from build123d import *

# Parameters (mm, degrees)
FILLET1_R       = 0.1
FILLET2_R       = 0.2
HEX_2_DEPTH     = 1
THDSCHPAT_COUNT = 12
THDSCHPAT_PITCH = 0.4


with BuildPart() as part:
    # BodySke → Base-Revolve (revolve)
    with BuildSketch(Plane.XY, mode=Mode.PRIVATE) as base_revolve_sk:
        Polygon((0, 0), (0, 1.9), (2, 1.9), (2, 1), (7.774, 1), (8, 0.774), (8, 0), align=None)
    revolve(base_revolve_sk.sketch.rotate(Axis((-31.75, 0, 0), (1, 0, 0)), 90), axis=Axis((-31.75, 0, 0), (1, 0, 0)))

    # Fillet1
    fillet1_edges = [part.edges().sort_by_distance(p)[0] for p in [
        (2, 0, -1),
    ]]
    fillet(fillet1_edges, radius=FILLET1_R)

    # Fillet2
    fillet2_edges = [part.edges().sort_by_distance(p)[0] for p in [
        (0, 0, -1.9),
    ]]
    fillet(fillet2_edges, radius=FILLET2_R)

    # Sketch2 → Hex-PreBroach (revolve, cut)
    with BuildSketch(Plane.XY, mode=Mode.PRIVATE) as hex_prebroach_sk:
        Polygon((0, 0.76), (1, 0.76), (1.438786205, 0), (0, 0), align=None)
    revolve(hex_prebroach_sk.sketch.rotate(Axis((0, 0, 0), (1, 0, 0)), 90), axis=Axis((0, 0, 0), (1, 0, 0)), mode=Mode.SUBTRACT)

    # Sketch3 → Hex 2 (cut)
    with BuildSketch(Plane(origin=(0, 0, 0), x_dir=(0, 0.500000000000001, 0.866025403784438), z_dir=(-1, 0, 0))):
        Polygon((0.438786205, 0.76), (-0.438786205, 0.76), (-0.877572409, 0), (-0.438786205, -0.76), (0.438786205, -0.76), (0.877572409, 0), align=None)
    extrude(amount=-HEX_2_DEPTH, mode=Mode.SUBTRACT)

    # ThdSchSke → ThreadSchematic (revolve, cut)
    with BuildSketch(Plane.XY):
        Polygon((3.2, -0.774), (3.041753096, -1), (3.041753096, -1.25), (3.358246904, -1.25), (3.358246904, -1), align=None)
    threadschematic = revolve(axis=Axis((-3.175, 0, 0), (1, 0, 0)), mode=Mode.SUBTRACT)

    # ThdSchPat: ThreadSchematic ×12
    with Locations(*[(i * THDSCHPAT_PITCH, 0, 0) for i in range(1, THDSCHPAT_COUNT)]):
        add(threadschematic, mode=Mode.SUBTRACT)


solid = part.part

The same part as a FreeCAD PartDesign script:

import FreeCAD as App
import Part
import Sketcher
from FreeCAD import Vector
Q = App.Units.Quantity


def edges_at(feature, points):
    """Names of the edges that pass closest to the given points."""
    edges = feature.Shape.Edges
    near = lambda p: min(range(len(edges)), key=lambda i: edges[i].distToShape(Part.Vertex(*p))[0])
    return sorted({f"Edge{near(p) + 1}" for p in points})

doc = App.newDocument("Part")
body = doc.addObject("PartDesign::Body", "Body")

sketch1 = body.newObject("Sketcher::SketchObject", "Sketch")
sketch1.AttachmentSupport = (doc.getObject("XY_Plane"), [""])
sketch1.MapMode = "FlatFace"
sketch1.addGeometry(Part.LineSegment(Vector(0, 1.9, 0), Vector(0, 0, 0)), False)
sketch1.addGeometry(Part.LineSegment(Vector(0, 0, 0), Vector(8, 0, 0)), False)
sketch1.addGeometry(Part.LineSegment(Vector(8, 0, 0), Vector(8, 0.774, 0)), False)
sketch1.addGeometry(Part.LineSegment(Vector(8, 0.774, 0), Vector(7.774, 1, 0)), False)
sketch1.addGeometry(Part.LineSegment(Vector(7.774, 1, 0), Vector(2, 1, 0)), False)
sketch1.addGeometry(Part.LineSegment(Vector(2, 1, 0), Vector(2, 1.9, 0)), False)
sketch1.addGeometry(Part.LineSegment(Vector(2, 1.9, 0), Vector(0, 1.9, 0)), False)
sketch1.addConstraint(Sketcher.Constraint("Coincident", 0, 2, 1, 1))
sketch1.addConstraint(Sketcher.Constraint("Coincident", 1, 2, 2, 1))
sketch1.addConstraint(Sketcher.Constraint("Coincident", 2, 2, 3, 1))
sketch1.addConstraint(Sketcher.Constraint("Coincident", 3, 2, 4, 1))
sketch1.addConstraint(Sketcher.Constraint("Coincident", 4, 2, 5, 1))
sketch1.addConstraint(Sketcher.Constraint("Coincident", 5, 2, 6, 1))
sketch1.addConstraint(Sketcher.Constraint("Coincident", 6, 2, 0, 1))
sketch1.addConstraint(Sketcher.Constraint("Vertical", 0))
sketch1.addConstraint(Sketcher.Constraint("Horizontal", 1))
sketch1.addConstraint(Sketcher.Constraint("Vertical", 2))
sketch1.addConstraint(Sketcher.Constraint("Horizontal", 4))
sketch1.addConstraint(Sketcher.Constraint("Vertical", 5))
sketch1.addConstraint(Sketcher.Constraint("Horizontal", 6))
sketch1.addConstraint(Sketcher.Constraint("Coincident", 0, 2, -1, 1))
sketch1.addConstraint(Sketcher.Constraint("DistanceX", 1, 1, 1, 2, Q("8 mm")))
sketch1.addConstraint(Sketcher.Constraint("DistanceX", 6, 2, 6, 1, Q("2 mm")))
sketch1.addConstraint(Sketcher.Constraint("Angle", 3, Q("135 deg")))
sketch1.addConstraint(Sketcher.Constraint("DistanceY", 0, 2, 0, 1, Q("1.9 mm")))
sketch1.addConstraint(Sketcher.Constraint("DistanceY", 5, 1, 5, 2, Q("0.9 mm")))
sketch1.addConstraint(Sketcher.Constraint("DistanceX", 4, 2, 4, 1, Q("5.774 mm")))
revolution = body.newObject("PartDesign::Revolution", "Revolution")
revolution.Profile = sketch1
revolution.ReferenceAxis = (sketch1, ["H_Axis"])
revolution.Angle = 360
doc.recompute()

fillet = body.newObject("PartDesign::Fillet", "Fillet")
fillet.Base = (revolution, edges_at(revolution, [(2, 0, -1)]))
fillet.Radius = 0.1
doc.recompute()

fillet2 = body.newObject("PartDesign::Fillet", "Fillet001")
fillet2.Base = (fillet, edges_at(fillet, [(0, 0, -1.9)]))
fillet2.Radius = 0.2

sketch2 = body.newObject("Sketcher::SketchObject", "Sketch001")
sketch2.AttachmentSupport = (doc.getObject("XY_Plane"), [""])
sketch2.MapMode = "FlatFace"
sketch2.addGeometry(Part.LineSegment(Vector(1, 0.76, 0), Vector(0, 0.76, 0)), False)
sketch2.addGeometry(Part.LineSegment(Vector(0, 0.76, 0), Vector(0, 0, 0)), False)
sketch2.addGeometry(Part.LineSegment(Vector(0, 0, 0), Vector(1.438786, 0, 0)), False)
sketch2.addGeometry(Part.LineSegment(Vector(1.438786, 0, 0), Vector(1, 0.76, 0)), False)
sketch2.addConstraint(Sketcher.Constraint("Coincident", 0, 2, 1, 1))
sketch2.addConstraint(Sketcher.Constraint("Coincident", 1, 2, 2, 1))
sketch2.addConstraint(Sketcher.Constraint("Coincident", 2, 2, 3, 1))
sketch2.addConstraint(Sketcher.Constraint("Coincident", 3, 2, 0, 1))
sketch2.addConstraint(Sketcher.Constraint("Horizontal", 0))
sketch2.addConstraint(Sketcher.Constraint("Vertical", 1))
sketch2.addConstraint(Sketcher.Constraint("Horizontal", 2))
sketch2.addConstraint(Sketcher.Constraint("Coincident", 1, 2, -1, 1))
sketch2.addConstraint(Sketcher.Constraint("DistanceX", 0, 2, 0, 1, Q("1 mm")))
sketch2.addConstraint(Sketcher.Constraint("Angle", 3, Q("120 deg")))
sketch2.addConstraint(Sketcher.Constraint("DistanceY", 1, 2, 1, 1, Q("0.76 mm")))
groove = body.newObject("PartDesign::Groove", "Groove")
groove.Profile = sketch2
groove.ReferenceAxis = (sketch2, ["H_Axis"])
groove.Angle = 360

sketch3 = body.newObject("Sketcher::SketchObject", "Sketch002")
sketch3.AttachmentSupport = (doc.getObject("YZ_Plane"), [""])
sketch3.MapMode = "FlatFace"
sketch3.addGeometry(Part.LineSegment(Vector(0.877572, 0, 0), Vector(0.438786, -0.76, 0)), False)
sketch3.addGeometry(Part.LineSegment(Vector(0.438786, -0.76, 0), Vector(-0.438786, -0.76, 0)), False)
sketch3.addGeometry(Part.LineSegment(Vector(-0.438786, -0.76, 0), Vector(-0.877572, 0, 0)), False)
sketch3.addGeometry(Part.LineSegment(Vector(-0.877572, 0, 0), Vector(-0.438786, 0.76, 0)), False)
sketch3.addGeometry(Part.LineSegment(Vector(-0.438786, 0.76, 0), Vector(0.438786, 0.76, 0)), False)
sketch3.addGeometry(Part.LineSegment(Vector(0.438786, 0.76, 0), Vector(0.877572, 0, 0)), False)
sketch3.addConstraint(Sketcher.Constraint("Coincident", 0, 2, 1, 1))
sketch3.addConstraint(Sketcher.Constraint("Coincident", 1, 2, 2, 1))
sketch3.addConstraint(Sketcher.Constraint("Coincident", 2, 2, 3, 1))
sketch3.addConstraint(Sketcher.Constraint("Coincident", 3, 2, 4, 1))
sketch3.addConstraint(Sketcher.Constraint("Coincident", 4, 2, 5, 1))
sketch3.addConstraint(Sketcher.Constraint("Coincident", 5, 2, 0, 1))
sketch3.addConstraint(Sketcher.Constraint("Horizontal", 1))
sketch3.addConstraint(Sketcher.Constraint("Horizontal", 4))
sketch3.addConstraint(Sketcher.Constraint("Symmetric", 0, 2, 3, 2, -1, 1))
sketch3.addConstraint(Sketcher.Constraint("Symmetric", 2, 2, 5, 2, -1, 1))
sketch3.addConstraint(Sketcher.Constraint("PointOnObject", 2, 2, -1))
sketch3.addConstraint(Sketcher.Constraint("Parallel", 2, 5))
sketch3.addConstraint(Sketcher.Constraint("Vertical", 1, 2, 3, 2))
sketch3.addConstraint(Sketcher.Constraint("Angle", 0, Q("-120 deg")))
sketch3.addConstraint(Sketcher.Constraint("DistanceY", 0, 2, -1, 1, Q("0.76 mm")))
sketch3.addConstraint(Sketcher.Constraint("DistanceX", 1, 2, 1, 1, Q("0.877572 mm")))
pocket1 = body.newObject("PartDesign::Pocket", "Pocket")
pocket1.Profile = sketch3
pocket1.Length = 1
pocket1.Reversed = True

sketch4 = body.newObject("Sketcher::SketchObject", "Sketch003")
sketch4.AttachmentSupport = (doc.getObject("XY_Plane"), [""])
sketch4.MapMode = "FlatFace"
sketch4.addGeometry(Part.LineSegment(Vector(3.2, -0.774, 0), Vector(3.041753, -1, 0)), False)
sketch4.addGeometry(Part.LineSegment(Vector(3.041753, -1, 0), Vector(3.041753, -1.25, 0)), False)
sketch4.addGeometry(Part.LineSegment(Vector(3.041753, -1.25, 0), Vector(3.358247, -1.25, 0)), False)
sketch4.addGeometry(Part.LineSegment(Vector(3.358247, -1.25, 0), Vector(3.358247, -1, 0)), False)
sketch4.addGeometry(Part.LineSegment(Vector(3.358247, -1, 0), Vector(3.2, -0.774, 0)), False)
sketch4.addConstraint(Sketcher.Constraint("Coincident", 0, 2, 1, 1))
sketch4.addConstraint(Sketcher.Constraint("Coincident", 1, 2, 2, 1))
sketch4.addConstraint(Sketcher.Constraint("Coincident", 2, 2, 3, 1))
sketch4.addConstraint(Sketcher.Constraint("Coincident", 3, 2, 4, 1))
sketch4.addConstraint(Sketcher.Constraint("Coincident", 4, 2, 0, 1))
sketch4.addConstraint(Sketcher.Constraint("Vertical", 1))
sketch4.addConstraint(Sketcher.Constraint("Horizontal", 2))
sketch4.addConstraint(Sketcher.Constraint("Vertical", 3))
sketch4.addConstraint(Sketcher.Constraint("Horizontal", 0, 2, 3, 2))
sketch4.addConstraint(Sketcher.Constraint("Equal", 0, 4))
sketch4.addConstraint(Sketcher.Constraint("Angle", 0, Q("-125 deg")))
sketch4.addConstraint(Sketcher.Constraint("DistanceY", 0, 2, -1, 1, Q("1 mm")))
sketch4.addConstraint(Sketcher.Constraint("DistanceY", 1, 2, 1, 1, Q("0.25 mm")))
sketch4.addConstraint(Sketcher.Constraint("DistanceX", -1, 1, 4, 2, Q("3.2 mm")))
sketch4.addConstraint(Sketcher.Constraint("DistanceY", 4, 2, -1, 1, Q("0.774 mm")))
groove2 = body.newObject("PartDesign::Groove", "Groove001")
groove2.Profile = sketch4
groove2.ReferenceAxis = (sketch4, ["H_Axis"])
groove2.Angle = 360
doc.recompute()

linearpattern = body.newObject("PartDesign::LinearPattern", "LinearPattern")
linearpattern.Originals = [groove2]
linearpattern.Direction = (doc.getObject("X_Axis"), [""])
linearpattern.Mode = "offset"
linearpattern.Offset = 0.4
linearpattern.Occurrences = 12
body.Tip = linearpattern

doc.recompute()
